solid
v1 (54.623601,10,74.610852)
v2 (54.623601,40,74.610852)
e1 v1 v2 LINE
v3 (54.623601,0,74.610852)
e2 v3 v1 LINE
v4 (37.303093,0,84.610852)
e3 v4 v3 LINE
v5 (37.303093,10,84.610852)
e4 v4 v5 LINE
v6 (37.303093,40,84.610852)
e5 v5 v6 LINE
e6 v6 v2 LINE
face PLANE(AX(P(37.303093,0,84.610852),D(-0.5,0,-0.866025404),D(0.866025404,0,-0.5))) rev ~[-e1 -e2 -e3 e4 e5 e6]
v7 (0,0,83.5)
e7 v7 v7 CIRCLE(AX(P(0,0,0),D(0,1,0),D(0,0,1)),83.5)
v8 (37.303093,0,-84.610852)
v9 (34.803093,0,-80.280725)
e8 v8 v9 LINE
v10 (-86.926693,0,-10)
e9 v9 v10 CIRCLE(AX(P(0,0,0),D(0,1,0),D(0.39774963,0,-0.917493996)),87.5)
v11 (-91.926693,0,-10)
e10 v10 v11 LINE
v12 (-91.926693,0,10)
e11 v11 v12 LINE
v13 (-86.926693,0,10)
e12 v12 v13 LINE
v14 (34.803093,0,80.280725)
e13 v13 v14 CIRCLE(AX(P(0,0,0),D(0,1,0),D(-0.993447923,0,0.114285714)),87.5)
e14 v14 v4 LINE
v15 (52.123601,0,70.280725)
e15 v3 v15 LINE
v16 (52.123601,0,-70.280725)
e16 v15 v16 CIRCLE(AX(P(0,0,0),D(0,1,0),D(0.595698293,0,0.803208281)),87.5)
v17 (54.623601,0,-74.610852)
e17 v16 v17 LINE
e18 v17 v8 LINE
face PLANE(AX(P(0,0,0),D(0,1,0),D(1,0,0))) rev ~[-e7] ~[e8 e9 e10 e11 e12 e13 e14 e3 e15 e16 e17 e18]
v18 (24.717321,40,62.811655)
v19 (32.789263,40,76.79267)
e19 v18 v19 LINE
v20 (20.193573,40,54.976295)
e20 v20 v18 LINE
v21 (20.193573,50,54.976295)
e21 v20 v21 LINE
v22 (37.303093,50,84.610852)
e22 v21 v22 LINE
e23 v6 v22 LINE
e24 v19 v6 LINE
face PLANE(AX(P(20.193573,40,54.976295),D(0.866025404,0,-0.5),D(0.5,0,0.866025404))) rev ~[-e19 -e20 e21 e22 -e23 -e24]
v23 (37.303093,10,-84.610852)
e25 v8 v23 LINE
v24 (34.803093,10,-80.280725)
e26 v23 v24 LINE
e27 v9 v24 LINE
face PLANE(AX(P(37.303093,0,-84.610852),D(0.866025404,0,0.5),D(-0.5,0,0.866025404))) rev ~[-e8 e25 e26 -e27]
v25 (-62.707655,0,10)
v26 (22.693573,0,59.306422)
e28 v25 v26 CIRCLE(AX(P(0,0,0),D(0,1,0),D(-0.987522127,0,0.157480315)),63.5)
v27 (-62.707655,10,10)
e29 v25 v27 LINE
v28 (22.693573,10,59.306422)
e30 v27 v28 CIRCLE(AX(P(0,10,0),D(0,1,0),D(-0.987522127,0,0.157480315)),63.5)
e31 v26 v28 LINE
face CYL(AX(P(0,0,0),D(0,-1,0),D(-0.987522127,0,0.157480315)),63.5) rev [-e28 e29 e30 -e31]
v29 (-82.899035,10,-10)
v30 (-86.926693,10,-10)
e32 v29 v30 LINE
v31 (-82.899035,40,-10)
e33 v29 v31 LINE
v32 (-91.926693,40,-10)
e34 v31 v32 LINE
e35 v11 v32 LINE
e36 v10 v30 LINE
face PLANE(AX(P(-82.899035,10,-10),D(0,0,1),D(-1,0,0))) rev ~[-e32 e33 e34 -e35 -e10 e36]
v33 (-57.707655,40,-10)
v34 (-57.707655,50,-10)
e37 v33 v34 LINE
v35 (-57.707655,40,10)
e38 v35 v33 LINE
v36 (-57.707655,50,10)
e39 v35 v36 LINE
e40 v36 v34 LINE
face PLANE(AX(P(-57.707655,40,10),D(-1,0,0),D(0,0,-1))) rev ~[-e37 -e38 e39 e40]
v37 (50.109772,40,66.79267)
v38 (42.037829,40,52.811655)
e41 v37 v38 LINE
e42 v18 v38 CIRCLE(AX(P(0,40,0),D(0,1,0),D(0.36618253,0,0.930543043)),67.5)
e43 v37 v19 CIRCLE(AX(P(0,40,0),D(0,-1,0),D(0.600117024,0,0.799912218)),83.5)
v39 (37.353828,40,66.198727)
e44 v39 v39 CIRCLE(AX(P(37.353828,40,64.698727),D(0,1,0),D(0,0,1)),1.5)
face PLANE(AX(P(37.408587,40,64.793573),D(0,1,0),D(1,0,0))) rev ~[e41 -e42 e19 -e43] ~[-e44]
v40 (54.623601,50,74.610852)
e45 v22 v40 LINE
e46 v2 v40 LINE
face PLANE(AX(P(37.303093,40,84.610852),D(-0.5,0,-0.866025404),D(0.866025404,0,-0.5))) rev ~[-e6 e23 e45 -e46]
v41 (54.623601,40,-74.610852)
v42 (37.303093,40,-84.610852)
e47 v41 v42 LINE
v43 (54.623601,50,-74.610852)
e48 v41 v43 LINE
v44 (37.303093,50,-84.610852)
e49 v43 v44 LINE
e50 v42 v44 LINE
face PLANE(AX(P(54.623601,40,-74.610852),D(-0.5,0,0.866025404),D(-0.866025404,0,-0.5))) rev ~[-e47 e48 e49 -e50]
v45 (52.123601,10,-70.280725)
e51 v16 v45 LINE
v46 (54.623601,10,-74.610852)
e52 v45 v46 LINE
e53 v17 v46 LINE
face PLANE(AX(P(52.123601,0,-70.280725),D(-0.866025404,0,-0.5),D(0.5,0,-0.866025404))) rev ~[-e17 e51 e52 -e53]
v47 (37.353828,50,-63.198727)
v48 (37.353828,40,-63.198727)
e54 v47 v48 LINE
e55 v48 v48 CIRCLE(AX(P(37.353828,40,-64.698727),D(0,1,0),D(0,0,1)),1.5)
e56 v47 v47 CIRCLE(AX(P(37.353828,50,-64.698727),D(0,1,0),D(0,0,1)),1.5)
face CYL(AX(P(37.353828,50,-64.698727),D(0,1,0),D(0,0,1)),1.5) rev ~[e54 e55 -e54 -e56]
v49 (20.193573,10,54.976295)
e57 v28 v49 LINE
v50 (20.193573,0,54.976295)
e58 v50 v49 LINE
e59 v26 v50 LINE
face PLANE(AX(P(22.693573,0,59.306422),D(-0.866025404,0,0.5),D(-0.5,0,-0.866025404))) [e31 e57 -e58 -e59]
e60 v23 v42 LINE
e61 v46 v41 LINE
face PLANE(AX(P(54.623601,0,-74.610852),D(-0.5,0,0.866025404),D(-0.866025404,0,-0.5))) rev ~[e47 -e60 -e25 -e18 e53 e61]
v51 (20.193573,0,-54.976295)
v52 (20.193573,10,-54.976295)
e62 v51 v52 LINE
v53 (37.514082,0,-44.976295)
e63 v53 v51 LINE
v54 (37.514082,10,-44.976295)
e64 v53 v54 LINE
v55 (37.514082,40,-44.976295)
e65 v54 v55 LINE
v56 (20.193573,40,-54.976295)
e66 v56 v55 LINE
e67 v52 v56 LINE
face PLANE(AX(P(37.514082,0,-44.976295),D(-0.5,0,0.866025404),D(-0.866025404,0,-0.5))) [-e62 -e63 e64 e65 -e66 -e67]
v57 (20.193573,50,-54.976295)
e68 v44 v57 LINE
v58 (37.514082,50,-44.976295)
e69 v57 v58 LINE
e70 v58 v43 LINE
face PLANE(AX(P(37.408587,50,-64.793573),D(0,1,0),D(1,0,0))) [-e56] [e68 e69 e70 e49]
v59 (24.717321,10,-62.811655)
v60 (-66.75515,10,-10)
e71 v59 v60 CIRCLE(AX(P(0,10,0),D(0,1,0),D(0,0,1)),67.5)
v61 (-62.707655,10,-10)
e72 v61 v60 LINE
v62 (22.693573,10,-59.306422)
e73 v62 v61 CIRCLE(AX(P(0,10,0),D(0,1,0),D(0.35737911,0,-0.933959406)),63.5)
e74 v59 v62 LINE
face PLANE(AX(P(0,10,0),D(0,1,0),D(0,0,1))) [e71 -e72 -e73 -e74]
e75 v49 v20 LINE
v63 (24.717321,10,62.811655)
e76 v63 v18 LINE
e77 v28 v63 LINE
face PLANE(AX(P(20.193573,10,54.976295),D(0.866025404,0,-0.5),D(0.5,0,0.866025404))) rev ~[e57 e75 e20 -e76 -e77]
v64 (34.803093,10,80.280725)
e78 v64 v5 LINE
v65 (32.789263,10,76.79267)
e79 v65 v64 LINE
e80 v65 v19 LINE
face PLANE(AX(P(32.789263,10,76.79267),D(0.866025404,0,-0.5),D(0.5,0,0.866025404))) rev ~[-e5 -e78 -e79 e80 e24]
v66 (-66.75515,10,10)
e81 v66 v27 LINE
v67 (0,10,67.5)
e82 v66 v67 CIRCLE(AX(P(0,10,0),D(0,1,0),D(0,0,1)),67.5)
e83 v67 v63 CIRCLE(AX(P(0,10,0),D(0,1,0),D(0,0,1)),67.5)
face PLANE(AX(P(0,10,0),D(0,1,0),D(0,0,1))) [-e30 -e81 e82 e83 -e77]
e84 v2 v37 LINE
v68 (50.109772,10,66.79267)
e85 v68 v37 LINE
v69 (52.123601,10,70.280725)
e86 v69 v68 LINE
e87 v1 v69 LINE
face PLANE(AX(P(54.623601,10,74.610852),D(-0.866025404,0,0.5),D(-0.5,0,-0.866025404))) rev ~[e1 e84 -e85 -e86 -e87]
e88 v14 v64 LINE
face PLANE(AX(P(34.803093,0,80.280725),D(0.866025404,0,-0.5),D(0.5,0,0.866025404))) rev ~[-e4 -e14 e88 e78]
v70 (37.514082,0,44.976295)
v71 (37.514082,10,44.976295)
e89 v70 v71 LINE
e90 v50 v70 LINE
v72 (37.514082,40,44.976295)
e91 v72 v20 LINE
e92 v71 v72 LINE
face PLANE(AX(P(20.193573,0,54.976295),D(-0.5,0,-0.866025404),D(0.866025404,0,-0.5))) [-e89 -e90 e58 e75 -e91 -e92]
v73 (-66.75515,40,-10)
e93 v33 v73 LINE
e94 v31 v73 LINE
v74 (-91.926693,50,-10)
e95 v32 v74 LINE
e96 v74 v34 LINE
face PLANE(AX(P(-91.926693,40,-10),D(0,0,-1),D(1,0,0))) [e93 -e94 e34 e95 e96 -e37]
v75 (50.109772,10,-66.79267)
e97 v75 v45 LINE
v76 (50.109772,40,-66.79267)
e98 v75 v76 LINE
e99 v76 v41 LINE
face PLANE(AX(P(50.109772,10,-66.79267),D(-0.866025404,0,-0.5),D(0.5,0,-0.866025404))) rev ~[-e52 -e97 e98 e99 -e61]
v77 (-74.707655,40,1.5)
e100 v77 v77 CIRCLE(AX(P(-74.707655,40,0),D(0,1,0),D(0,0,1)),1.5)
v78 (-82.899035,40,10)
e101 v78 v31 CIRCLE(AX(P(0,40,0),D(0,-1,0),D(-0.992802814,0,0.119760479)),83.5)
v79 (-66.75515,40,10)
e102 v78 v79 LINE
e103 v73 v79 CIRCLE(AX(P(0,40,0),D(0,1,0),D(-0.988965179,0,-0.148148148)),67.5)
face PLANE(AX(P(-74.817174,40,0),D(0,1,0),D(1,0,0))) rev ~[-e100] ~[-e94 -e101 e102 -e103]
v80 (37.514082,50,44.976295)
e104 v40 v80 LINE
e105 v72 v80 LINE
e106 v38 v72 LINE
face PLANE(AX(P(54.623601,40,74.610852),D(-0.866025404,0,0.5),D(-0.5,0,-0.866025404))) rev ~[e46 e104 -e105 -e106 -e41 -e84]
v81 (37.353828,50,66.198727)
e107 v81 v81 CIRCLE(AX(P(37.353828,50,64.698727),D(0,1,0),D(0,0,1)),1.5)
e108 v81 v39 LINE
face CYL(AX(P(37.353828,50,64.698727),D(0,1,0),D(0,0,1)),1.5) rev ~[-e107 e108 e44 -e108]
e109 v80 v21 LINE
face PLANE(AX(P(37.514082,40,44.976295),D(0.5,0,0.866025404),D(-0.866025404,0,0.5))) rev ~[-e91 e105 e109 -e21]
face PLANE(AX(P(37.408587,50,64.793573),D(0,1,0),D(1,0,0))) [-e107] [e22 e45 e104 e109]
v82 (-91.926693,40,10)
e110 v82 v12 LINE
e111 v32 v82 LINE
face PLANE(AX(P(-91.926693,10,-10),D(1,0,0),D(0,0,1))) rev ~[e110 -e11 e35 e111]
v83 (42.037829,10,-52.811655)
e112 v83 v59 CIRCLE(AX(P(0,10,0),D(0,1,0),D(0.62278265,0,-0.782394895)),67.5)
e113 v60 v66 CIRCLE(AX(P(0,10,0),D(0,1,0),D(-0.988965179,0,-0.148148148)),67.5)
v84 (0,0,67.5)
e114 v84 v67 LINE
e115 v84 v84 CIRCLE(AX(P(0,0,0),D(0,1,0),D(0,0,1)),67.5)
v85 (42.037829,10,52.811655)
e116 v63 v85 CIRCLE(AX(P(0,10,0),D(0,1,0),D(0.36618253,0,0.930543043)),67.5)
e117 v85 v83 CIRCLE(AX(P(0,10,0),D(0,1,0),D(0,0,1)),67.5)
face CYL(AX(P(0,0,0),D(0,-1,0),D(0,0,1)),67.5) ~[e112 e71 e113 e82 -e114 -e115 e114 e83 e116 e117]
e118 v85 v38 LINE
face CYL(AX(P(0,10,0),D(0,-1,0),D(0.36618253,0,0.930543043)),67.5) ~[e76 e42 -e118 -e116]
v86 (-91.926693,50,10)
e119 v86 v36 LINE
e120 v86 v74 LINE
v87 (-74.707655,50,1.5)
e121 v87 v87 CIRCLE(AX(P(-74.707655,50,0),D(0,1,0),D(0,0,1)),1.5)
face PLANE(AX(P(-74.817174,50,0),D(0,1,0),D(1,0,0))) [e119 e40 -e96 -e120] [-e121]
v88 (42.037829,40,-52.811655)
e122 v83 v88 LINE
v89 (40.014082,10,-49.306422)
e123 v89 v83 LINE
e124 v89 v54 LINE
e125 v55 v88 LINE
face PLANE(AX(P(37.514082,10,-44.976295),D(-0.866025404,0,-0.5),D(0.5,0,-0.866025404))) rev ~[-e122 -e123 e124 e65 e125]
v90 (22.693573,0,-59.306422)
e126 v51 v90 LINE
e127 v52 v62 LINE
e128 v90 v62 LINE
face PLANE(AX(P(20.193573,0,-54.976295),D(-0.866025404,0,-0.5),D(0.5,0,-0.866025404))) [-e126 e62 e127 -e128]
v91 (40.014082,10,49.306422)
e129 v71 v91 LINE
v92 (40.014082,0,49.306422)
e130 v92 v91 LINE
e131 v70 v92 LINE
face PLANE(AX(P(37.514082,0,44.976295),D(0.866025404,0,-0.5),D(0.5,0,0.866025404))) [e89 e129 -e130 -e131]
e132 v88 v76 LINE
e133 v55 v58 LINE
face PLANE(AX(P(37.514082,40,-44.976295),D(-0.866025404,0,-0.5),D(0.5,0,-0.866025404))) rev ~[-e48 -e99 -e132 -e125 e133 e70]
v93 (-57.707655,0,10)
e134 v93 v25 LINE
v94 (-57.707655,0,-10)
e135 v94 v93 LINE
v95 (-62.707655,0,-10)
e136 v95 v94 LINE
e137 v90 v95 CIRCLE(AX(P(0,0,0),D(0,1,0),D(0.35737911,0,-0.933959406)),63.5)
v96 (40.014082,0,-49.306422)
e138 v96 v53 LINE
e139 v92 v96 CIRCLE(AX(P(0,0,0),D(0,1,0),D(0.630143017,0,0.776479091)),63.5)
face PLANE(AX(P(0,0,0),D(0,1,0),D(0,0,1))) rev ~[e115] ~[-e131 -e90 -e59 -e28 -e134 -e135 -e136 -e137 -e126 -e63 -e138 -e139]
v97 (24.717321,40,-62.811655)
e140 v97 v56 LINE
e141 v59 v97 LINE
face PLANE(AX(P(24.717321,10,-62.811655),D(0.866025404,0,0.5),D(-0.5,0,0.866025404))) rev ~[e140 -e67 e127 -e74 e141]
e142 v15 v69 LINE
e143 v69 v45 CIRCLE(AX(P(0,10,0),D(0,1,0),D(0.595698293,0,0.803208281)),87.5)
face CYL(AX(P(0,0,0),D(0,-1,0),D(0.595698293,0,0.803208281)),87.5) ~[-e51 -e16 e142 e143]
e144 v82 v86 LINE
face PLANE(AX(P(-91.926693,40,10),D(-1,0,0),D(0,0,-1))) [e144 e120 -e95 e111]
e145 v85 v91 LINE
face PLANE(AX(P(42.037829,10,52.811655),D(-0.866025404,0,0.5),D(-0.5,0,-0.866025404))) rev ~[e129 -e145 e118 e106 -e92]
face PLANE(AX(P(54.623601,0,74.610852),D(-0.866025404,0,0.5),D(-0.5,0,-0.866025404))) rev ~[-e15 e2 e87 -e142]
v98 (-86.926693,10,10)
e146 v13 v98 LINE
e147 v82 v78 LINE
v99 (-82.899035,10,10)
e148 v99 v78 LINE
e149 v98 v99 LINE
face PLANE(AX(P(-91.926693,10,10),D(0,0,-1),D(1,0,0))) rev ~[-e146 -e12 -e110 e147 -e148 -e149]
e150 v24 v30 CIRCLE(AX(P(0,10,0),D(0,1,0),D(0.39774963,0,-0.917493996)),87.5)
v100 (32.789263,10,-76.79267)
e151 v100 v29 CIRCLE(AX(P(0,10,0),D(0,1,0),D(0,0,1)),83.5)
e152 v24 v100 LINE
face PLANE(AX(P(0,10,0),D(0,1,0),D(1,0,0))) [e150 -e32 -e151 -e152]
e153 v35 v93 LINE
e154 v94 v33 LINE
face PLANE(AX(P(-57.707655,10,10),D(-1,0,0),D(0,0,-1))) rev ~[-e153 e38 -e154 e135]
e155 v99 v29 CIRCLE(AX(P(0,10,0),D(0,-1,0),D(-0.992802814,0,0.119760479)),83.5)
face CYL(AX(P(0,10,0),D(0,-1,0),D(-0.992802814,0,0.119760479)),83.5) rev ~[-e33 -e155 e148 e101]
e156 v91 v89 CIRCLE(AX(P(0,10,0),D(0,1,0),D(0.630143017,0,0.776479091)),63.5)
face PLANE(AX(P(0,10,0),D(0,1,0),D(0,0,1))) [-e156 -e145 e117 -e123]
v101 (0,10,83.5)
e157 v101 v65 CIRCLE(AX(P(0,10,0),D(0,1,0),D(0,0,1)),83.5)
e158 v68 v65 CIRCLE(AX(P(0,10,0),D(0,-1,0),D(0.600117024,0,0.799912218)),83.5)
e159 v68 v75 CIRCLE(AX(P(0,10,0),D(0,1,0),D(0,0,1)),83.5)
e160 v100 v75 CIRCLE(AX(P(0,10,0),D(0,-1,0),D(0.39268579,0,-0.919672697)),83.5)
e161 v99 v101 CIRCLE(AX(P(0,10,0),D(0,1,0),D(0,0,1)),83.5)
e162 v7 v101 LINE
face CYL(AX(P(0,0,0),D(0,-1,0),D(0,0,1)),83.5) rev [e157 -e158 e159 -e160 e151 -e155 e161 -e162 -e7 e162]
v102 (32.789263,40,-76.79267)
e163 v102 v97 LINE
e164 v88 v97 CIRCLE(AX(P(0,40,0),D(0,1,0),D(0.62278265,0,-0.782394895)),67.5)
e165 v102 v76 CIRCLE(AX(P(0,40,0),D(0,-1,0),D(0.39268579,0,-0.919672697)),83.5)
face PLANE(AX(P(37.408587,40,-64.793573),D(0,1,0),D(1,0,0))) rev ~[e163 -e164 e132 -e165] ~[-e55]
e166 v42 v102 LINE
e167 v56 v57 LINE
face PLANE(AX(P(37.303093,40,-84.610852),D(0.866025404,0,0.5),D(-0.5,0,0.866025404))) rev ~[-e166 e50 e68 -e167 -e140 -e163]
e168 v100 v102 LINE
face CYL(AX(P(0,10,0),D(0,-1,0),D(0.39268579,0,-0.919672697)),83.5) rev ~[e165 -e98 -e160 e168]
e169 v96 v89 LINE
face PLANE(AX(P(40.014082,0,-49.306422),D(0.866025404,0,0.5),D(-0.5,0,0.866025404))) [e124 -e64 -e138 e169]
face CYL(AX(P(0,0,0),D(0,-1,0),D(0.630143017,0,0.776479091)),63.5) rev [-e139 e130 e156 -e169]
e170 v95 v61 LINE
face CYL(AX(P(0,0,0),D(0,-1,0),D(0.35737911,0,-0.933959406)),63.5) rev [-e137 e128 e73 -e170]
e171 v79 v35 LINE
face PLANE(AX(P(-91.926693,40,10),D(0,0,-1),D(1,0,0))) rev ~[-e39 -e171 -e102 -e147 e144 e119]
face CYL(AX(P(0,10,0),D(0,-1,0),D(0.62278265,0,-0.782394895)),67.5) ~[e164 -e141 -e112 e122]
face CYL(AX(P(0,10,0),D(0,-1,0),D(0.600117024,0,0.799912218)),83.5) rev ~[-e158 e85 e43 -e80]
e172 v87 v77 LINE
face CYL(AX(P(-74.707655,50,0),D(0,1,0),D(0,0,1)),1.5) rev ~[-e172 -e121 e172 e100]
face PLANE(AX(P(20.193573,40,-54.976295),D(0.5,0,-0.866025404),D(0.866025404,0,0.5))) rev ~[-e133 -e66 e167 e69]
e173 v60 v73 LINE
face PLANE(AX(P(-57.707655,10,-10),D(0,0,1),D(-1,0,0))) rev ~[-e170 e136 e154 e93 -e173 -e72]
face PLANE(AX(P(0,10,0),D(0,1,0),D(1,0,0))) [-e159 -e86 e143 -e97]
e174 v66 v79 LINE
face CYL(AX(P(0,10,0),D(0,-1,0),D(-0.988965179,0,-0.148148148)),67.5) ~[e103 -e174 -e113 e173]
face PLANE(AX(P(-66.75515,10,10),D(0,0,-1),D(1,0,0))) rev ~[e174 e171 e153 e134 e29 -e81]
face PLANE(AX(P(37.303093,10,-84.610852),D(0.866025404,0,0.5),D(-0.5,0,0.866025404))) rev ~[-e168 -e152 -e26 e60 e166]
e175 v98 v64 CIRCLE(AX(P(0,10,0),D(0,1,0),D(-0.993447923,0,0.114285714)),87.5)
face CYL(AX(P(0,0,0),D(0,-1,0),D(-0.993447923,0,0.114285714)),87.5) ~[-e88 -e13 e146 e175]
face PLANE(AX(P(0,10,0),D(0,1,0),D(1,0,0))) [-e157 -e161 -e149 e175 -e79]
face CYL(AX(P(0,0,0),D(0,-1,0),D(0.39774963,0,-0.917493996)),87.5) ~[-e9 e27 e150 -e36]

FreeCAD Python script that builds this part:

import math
import FreeCAD as App
import Part
import Sketcher
Q = App.Units.Quantity

doc = App.newDocument("Part")
body = doc.addObject("PartDesign::Body", "Body")

# Sketch on XZ plane
sketch1 = doc.addObject("Sketcher::SketchObject", "Sketch")
body.addObject(sketch1)
sketch1.AttachmentSupport = (doc.XZ_Plane, [""])
sketch1.MapMode = "FlatFace"
sketch1.addGeometry(Part.Circle(App.Vector(0, 0, 0), App.Vector(0, 0, 1), 67.5), False)
sketch1.addGeometry(Part.ArcOfCircle(Part.Circle(App.Vector(0, 0, 0), App.Vector(0, 0, 1), 63.5), math.radians(-170.939325), math.radians(-69.060675)), False)
sketch1.addGeometry(Part.LineSegment(App.Vector(22.693573, -59.306422, 0), App.Vector(20.193573, -54.976295, 0)), False)
sketch1.addGeometry(Part.LineSegment(App.Vector(20.193573, -54.976295, 0), App.Vector(37.514082, -44.976295, 0)), False)
sketch1.addGeometry(Part.LineSegment(App.Vector(37.514082, -44.976295, 0), App.Vector(40.014082, -49.306422, 0)), False)
sketch1.addGeometry(Part.ArcOfCircle(Part.Circle(App.Vector(0, 0, 0), App.Vector(0, 0, 1), 63.5), math.radians(-50.939325), math.radians(50.939325)), False)
sketch1.addGeometry(Part.LineSegment(App.Vector(40.014082, 49.306422, 0), App.Vector(37.514082, 44.976295, 0)), False)
sketch1.addGeometry(Part.LineSegment(App.Vector(37.514082, 44.976295, 0), App.Vector(20.193573, 54.976295, 0)), False)
sketch1.addGeometry(Part.LineSegment(App.Vector(20.193573, 54.976295, 0), App.Vector(22.693573, 59.306422, 0)), False)
sketch1.addGeometry(Part.ArcOfCircle(Part.Circle(App.Vector(0, 0, 0), App.Vector(0, 0, 1), 63.5), math.radians(69.060675), math.radians(170.939325)), False)
sketch1.addGeometry(Part.LineSegment(App.Vector(-62.707655, 10, 0), App.Vector(-57.707655, 10, 0)), False)
sketch1.addGeometry(Part.LineSegment(App.Vector(-57.707655, 10, 0), App.Vector(-57.707655, -10, 0)), False)
sketch1.addGeometry(Part.LineSegment(App.Vector(-57.707655, -10, 0), App.Vector(-62.707655, -10, 0)), False)
sketch1.addConstraint(Sketcher.Constraint("Coincident", 1, 2, 2, 1))
sketch1.addConstraint(Sketcher.Constraint("Coincident", 2, 2, 3, 1))
sketch1.addConstraint(Sketcher.Constraint("Coincident", 3, 2, 4, 1))
sketch1.addConstraint(Sketcher.Constraint("Coincident", 4, 2, 5, 1))
sketch1.addConstraint(Sketcher.Constraint("Coincident", 5, 2, 6, 1))
sketch1.addConstraint(Sketcher.Constraint("Coincident", 6, 2, 7, 1))
sketch1.addConstraint(Sketcher.Constraint("Coincident", 7, 2, 8, 1))
sketch1.addConstraint(Sketcher.Constraint("Coincident", 8, 2, 9, 1))
sketch1.addConstraint(Sketcher.Constraint("Coincident", 9, 2, 10, 1))
sketch1.addConstraint(Sketcher.Constraint("Coincident", 10, 2, 11, 1))
sketch1.addConstraint(Sketcher.Constraint("Coincident", 11, 2, 12, 1))
sketch1.addConstraint(Sketcher.Constraint("Coincident", 12, 2, 1, 1))
sketch1.addConstraint(Sketcher.Constraint("Horizontal", 10))
sketch1.addConstraint(Sketcher.Constraint("Vertical", 11))
sketch1.addConstraint(Sketcher.Constraint("Horizontal", 12))
sketch1.addConstraint(Sketcher.Constraint("Coincident", 0, 3, -1, 1))
sketch1.addConstraint(Sketcher.Constraint("Coincident", 1, 3, -1, 1))
sketch1.addConstraint(Sketcher.Constraint("Coincident", 5, 3, -1, 1))
sketch1.addConstraint(Sketcher.Constraint("Coincident", 9, 3, -1, 1))
sketch1.addConstraint(Sketcher.Constraint("Equal", 1, 5))
sketch1.addConstraint(Sketcher.Constraint("Equal", 5, 9))
sketch1.addConstraint(Sketcher.Constraint("Symmetric", 3, 2, 6, 2, -1))
sketch1.addConstraint(Sketcher.Constraint("Symmetric", 2, 2, 7, 2, -1))
sketch1.addConstraint(Sketcher.Constraint("Perpendicular", 2, 3))
sketch1.addConstraint(Sketcher.Constraint("Perpendicular", 3, 4))
sketch1.addConstraint(Sketcher.Constraint("Perpendicular", 6, 7))
sketch1.addConstraint(Sketcher.Constraint("Perpendicular", 7, 8))
sketch1.addConstraint(Sketcher.Constraint("Vertical", 9, 2, 12, 2))
sketch1.addConstraint(Sketcher.Constraint("Equal", 2, 4))
sketch1.addConstraint(Sketcher.Constraint("Diameter", 0, 135.0))
sketch1.addConstraint(Sketcher.Constraint("Radius", 1, 63.5))
sketch1.addConstraint(Sketcher.Constraint("DistanceX", 10, 1, 10, 2, 5.0))
sketch1.addConstraint(Sketcher.Constraint("DistanceY", 11, 2, 11, 1, 20.0))
sketch1.addConstraint(Sketcher.Constraint("Angle", 2, Q("120 deg")))
sketch1.addConstraint(Sketcher.Constraint("Distance", 2, 5.0))
sketch1.addConstraint(Sketcher.Constraint("Distance", 3, 20.0))
pad1 = doc.addObject("PartDesign::Pad", "Pad")
body.addObject(pad1)
pad1.Profile = sketch1
pad1.Length = 10
pad1.Reversed = True
body2 = doc.addObject("PartDesign::Body", "Body001")

# Sketch on XZ plane
sketch2 = doc.addObject("Sketcher::SketchObject", "Sketch001")
body2.addObject(sketch2)
sketch2.AttachmentSupport = (doc.getObject("XZ_Plane001"), [""])
sketch2.MapMode = "FlatFace"
sketch2.addGeometry(Part.LineSegment(App.Vector(54.623601, 74.610852, 0), App.Vector(52.123601, 70.280725, 0)), False)
sketch2.addGeometry(Part.ArcOfCircle(Part.Circle(App.Vector(0, 0, 0), App.Vector(0, 0, 1), 87.5), math.radians(-53.437572), math.radians(53.437572)), False)
sketch2.addGeometry(Part.LineSegment(App.Vector(52.123601, -70.280725, 0), App.Vector(54.623601, -74.610852, 0)), False)
sketch2.addGeometry(Part.LineSegment(App.Vector(54.623601, -74.610852, 0), App.Vector(37.303093, -84.610852, 0)), False)
sketch2.addGeometry(Part.LineSegment(App.Vector(37.303093, -84.610852, 0), App.Vector(34.803093, -80.280725, 0)), False)
sketch2.addGeometry(Part.ArcOfCircle(Part.Circle(App.Vector(0, 0, 0), App.Vector(0, 0, 1), 87.5), math.radians(-173.437572), math.radians(-66.562428)), False)
sketch2.addGeometry(Part.LineSegment(App.Vector(-86.926693, -10, 0), App.Vector(-91.926693, -10, 0)), False)
sketch2.addGeometry(Part.LineSegment(App.Vector(-91.926693, -10, 0), App.Vector(-91.926693, 10, 0)), False)
sketch2.addGeometry(Part.LineSegment(App.Vector(-91.926693, 10, 0), App.Vector(-86.926693, 10, 0)), False)
sketch2.addGeometry(Part.ArcOfCircle(Part.Circle(App.Vector(0, 0, 0), App.Vector(0, 0, 1), 87.5), math.radians(66.562428), math.radians(173.437572)), False)
sketch2.addGeometry(Part.LineSegment(App.Vector(34.803093, 80.280725, 0), App.Vector(37.303093, 84.610852, 0)), False)
sketch2.addGeometry(Part.LineSegment(App.Vector(37.303093, 84.610852, 0), App.Vector(54.623601, 74.610852, 0)), False)
sketch2.addGeometry(Part.Circle(App.Vector(0, 0, 0), App.Vector(0, 0, 1), 83.5), False)
sketch2.addConstraint(Sketcher.Constraint("Coincident", 0, 2, 1, 2))
sketch2.addConstraint(Sketcher.Constraint("Coincident", 1, 1, 2, 1))
sketch2.addConstraint(Sketcher.Constraint("Coincident", 2, 2, 3, 1))
sketch2.addConstraint(Sketcher.Constraint("Coincident", 3, 2, 4, 1))
sketch2.addConstraint(Sketcher.Constraint("Coincident", 4, 2, 5, 2))
sketch2.addConstraint(Sketcher.Constraint("Coincident", 5, 1, 6, 1))
sketch2.addConstraint(Sketcher.Constraint("Coincident", 6, 2, 7, 1))
sketch2.addConstraint(Sketcher.Constraint("Coincident", 7, 2, 8, 1))
sketch2.addConstraint(Sketcher.Constraint("Coincident", 8, 2, 9, 2))
sketch2.addConstraint(Sketcher.Constraint("Coincident", 9, 1, 10, 1))
sketch2.addConstraint(Sketcher.Constraint("Coincident", 10, 2, 11, 1))
sketch2.addConstraint(Sketcher.Constraint("Coincident", 11, 2, 0, 1))
sketch2.addConstraint(Sketcher.Constraint("Horizontal", 6))
sketch2.addConstraint(Sketcher.Constraint("Vertical", 7))
sketch2.addConstraint(Sketcher.Constraint("Horizontal", 8))
sketch2.addConstraint(Sketcher.Constraint("Coincident", 1, 3, -1, 1))
sketch2.addConstraint(Sketcher.Constraint("Coincident", 5, 3, -1, 1))
sketch2.addConstraint(Sketcher.Constraint("Coincident", 9, 3, -1, 1))
sketch2.addConstraint(Sketcher.Constraint("Coincident", 12, 3, -1, 1))
sketch2.addConstraint(Sketcher.Constraint("Equal", 1, 5))
sketch2.addConstraint(Sketcher.Constraint("Equal", 5, 9))
sketch2.addConstraint(Sketcher.Constraint("Symmetric", 3, 2, 10, 2, -1))
sketch2.addConstraint(Sketcher.Constraint("Symmetric", 2, 2, 11, 2, -1))
sketch2.addConstraint(Sketcher.Constraint("Perpendicular", 2, 3))
sketch2.addConstraint(Sketcher.Constraint("Perpendicular", 3, 4))
sketch2.addConstraint(Sketcher.Constraint("Parallel", 0, 10))
sketch2.addConstraint(Sketcher.Constraint("Perpendicular", 10, 11))
sketch2.addConstraint(Sketcher.Constraint("Vertical", 5, 1, 8, 2))
sketch2.addConstraint(Sketcher.Constraint("Equal", 2, 4))
sketch2.addConstraint(Sketcher.Constraint("Diameter", 12, 167.0))
sketch2.addConstraint(Sketcher.Constraint("Radius", 1, 87.5))
sketch2.addConstraint(Sketcher.Constraint("DistanceX", 6, 2, 6, 1, 5.0))
sketch2.addConstraint(Sketcher.Constraint("DistanceY", 7, 1, 7, 2, 20.0))
sketch2.addConstraint(Sketcher.Constraint("Angle", 0, Q("-120 deg")))
sketch2.addConstraint(Sketcher.Constraint("Distance", 0, 5.0))
sketch2.addConstraint(Sketcher.Constraint("Distance", 3, 20.0))
pad2 = doc.addObject("PartDesign::Pad", "Pad001")
body2.addObject(pad2)
pad2.Profile = sketch2
pad2.Length = 10
pad2.Reversed = True
body.AllowCompound = True
doc.recompute()

boolean = doc.addObject("PartDesign::Boolean", "Boolean")
body.addObject(boolean)
boolean.Type = "Fuse"
boolean.addObjects([body2])

# Sketch on XZ plane
sketch3 = doc.addObject("Sketcher::SketchObject", "Sketch002")
body.addObject(sketch3)
sketch3.AttachmentSupport = (doc.XZ_Plane, [""])
sketch3.MapMode = "FlatFace"
sketch3.AttachmentOffset = App.Placement(App.Vector(0, 0, -10), App.Rotation())
sketch3.addGeometry(Part.LineSegment(App.Vector(-57.707655, 10, 0), App.Vector(-57.707655, -10, 0)), False)
sketch3.addGeometry(Part.LineSegment(App.Vector(-57.707655, -10, 0), App.Vector(-66.75515, -10, 0)), False)
sketch3.addGeometry(Part.ArcOfCircle(Part.Circle(App.Vector(0, 0, 0), App.Vector(0, 0, 1), 67.5), math.radians(171.480376), math.radians(188.519624)), False)
sketch3.addGeometry(Part.LineSegment(App.Vector(-66.75515, 10, 0), App.Vector(-57.707655, 10, 0)), False)
sketch3.addGeometry(Part.ArcOfCircle(Part.Circle(App.Vector(0, 0, 0), App.Vector(0, 0, 1), 83.5), math.radians(173.121721), math.radians(186.878279)), False)
sketch3.addGeometry(Part.LineSegment(App.Vector(-82.899035, -10, 0), App.Vector(-91.926693, -10, 0)), False)
sketch3.addGeometry(Part.LineSegment(App.Vector(-91.926693, -10, 0), App.Vector(-91.926693, 10, 0)), False)
sketch3.addGeometry(Part.LineSegment(App.Vector(-91.926693, 10, 0), App.Vector(-82.899035, 10, 0)), False)
sketch3.addGeometry(Part.ArcOfCircle(Part.Circle(App.Vector(0, 0, 0), App.Vector(0, 0, 1), 67.5), math.radians(-68.519624), math.radians(-51.480376)), False)
sketch3.addGeometry(Part.LineSegment(App.Vector(24.717321, -62.811655, 0), App.Vector(20.193573, -54.976295, 0)), False)
sketch3.addGeometry(Part.LineSegment(App.Vector(20.193573, -54.976295, 0), App.Vector(37.514082, -44.976295, 0)), False)
sketch3.addGeometry(Part.LineSegment(App.Vector(37.514082, -44.976295, 0), App.Vector(42.037829, -52.811655, 0)), False)
sketch3.addGeometry(Part.LineSegment(App.Vector(20.193573, 54.976295, 0), App.Vector(24.717321, 62.811655, 0)), False)
sketch3.addGeometry(Part.ArcOfCircle(Part.Circle(App.Vector(0, 0, 0), App.Vector(0, 0, 1), 67.5), math.radians(51.480376), math.radians(68.519624)), False)
sketch3.addGeometry(Part.LineSegment(App.Vector(42.037829, 52.811655, 0), App.Vector(37.514082, 44.976295, 0)), False)
sketch3.addGeometry(Part.LineSegment(App.Vector(37.514082, 44.976295, 0), App.Vector(20.193573, 54.976295, 0)), False)
sketch3.addGeometry(Part.LineSegment(App.Vector(37.303093, -84.610852, 0), App.Vector(32.789263, -76.79267, 0)), False)
sketch3.addGeometry(Part.ArcOfCircle(Part.Circle(App.Vector(0, 0, 0), App.Vector(0, 0, 1), 83.5), math.radians(-66.878279), math.radians(-53.121721)), False)
sketch3.addGeometry(Part.LineSegment(App.Vector(50.109772, -66.79267, 0), App.Vector(54.623601, -74.610852, 0)), False)
sketch3.addGeometry(Part.LineSegment(App.Vector(54.623601, -74.610852, 0), App.Vector(37.303093, -84.610852, 0)), False)
sketch3.addGeometry(Part.ArcOfCircle(Part.Circle(App.Vector(0, 0, 0), App.Vector(0, 0, 1), 83.5), math.radians(53.121721), math.radians(66.878279)), False)
sketch3.addGeometry(Part.LineSegment(App.Vector(32.789263, 76.79267, 0), App.Vector(37.303093, 84.610852, 0)), False)
sketch3.addGeometry(Part.LineSegment(App.Vector(37.303093, 84.610852, 0), App.Vector(54.623601, 74.610852, 0)), False)
sketch3.addGeometry(Part.LineSegment(App.Vector(54.623601, 74.610852, 0), App.Vector(50.109772, 66.79267, 0)), False)
sketch3.addConstraint(Sketcher.Constraint("Coincident", 0, 2, 1, 1))
sketch3.addConstraint(Sketcher.Constraint("Coincident", 1, 2, 2, 2))
sketch3.addConstraint(Sketcher.Constraint("Coincident", 2, 1, 3, 1))
sketch3.addConstraint(Sketcher.Constraint("Coincident", 3, 2, 0, 1))
sketch3.addConstraint(Sketcher.Constraint("Coincident", 4, 2, 5, 1))
sketch3.addConstraint(Sketcher.Constraint("Coincident", 5, 2, 6, 1))
sketch3.addConstraint(Sketcher.Constraint("Coincident", 6, 2, 7, 1))
sketch3.addConstraint(Sketcher.Constraint("Coincident", 7, 2, 4, 1))
sketch3.addConstraint(Sketcher.Constraint("Coincident", 8, 1, 9, 1))
sketch3.addConstraint(Sketcher.Constraint("Coincident", 9, 2, 10, 1))
sketch3.addConstraint(Sketcher.Constraint("Coincident", 10, 2, 11, 1))
sketch3.addConstraint(Sketcher.Constraint("Coincident", 11, 2, 8, 2))
sketch3.addConstraint(Sketcher.Constraint("Coincident", 12, 2, 13, 2))
sketch3.addConstraint(Sketcher.Constraint("Coincident", 13, 1, 14, 1))
sketch3.addConstraint(Sketcher.Constraint("Coincident", 14, 2, 15, 1))
sketch3.addConstraint(Sketcher.Constraint("Coincident", 15, 2, 12, 1))
sketch3.addConstraint(Sketcher.Constraint("Coincident", 16, 2, 17, 1))
sketch3.addConstraint(Sketcher.Constraint("Coincident", 17, 2, 18, 1))
sketch3.addConstraint(Sketcher.Constraint("Coincident", 18, 2, 19, 1))
sketch3.addConstraint(Sketcher.Constraint("Coincident", 19, 2, 16, 1))
sketch3.addConstraint(Sketcher.Constraint("Coincident", 20, 2, 21, 1))
sketch3.addConstraint(Sketcher.Constraint("Coincident", 21, 2, 22, 1))
sketch3.addConstraint(Sketcher.Constraint("Coincident", 22, 2, 23, 1))
sketch3.addConstraint(Sketcher.Constraint("Coincident", 23, 2, 20, 1))
sketch3.addConstraint(Sketcher.Constraint("Vertical", 0))
sketch3.addConstraint(Sketcher.Constraint("Horizontal", 1))
sketch3.addConstraint(Sketcher.Constraint("Horizontal", 3))
sketch3.addConstraint(Sketcher.Constraint("Horizontal", 5))
sketch3.addConstraint(Sketcher.Constraint("Vertical", 6))
sketch3.addConstraint(Sketcher.Constraint("Horizontal", 7))
sketch3.addConstraint(Sketcher.Constraint("Coincident", 2, 3, -1, 1))
sketch3.addConstraint(Sketcher.Constraint("Coincident", 4, 3, -1, 1))
sketch3.addConstraint(Sketcher.Constraint("Coincident", 8, 3, -1, 1))
sketch3.addConstraint(Sketcher.Constraint("Coincident", 13, 3, -1, 1))
sketch3.addConstraint(Sketcher.Constraint("Coincident", 17, 3, -1, 1))
sketch3.addConstraint(Sketcher.Constraint("Coincident", 20, 3, -1, 1))
sketch3.addConstraint(Sketcher.Constraint("Equal", 2, 8))
sketch3.addConstraint(Sketcher.Constraint("Equal", 8, 13))
sketch3.addConstraint(Sketcher.Constraint("Equal", 4, 17))
sketch3.addConstraint(Sketcher.Constraint("Equal", 17, 20))
sketch3.addConstraint(Sketcher.Constraint("Symmetric", 10, 2, 14, 2, -1))
sketch3.addConstraint(Sketcher.Constraint("Symmetric", 9, 2, 15, 2, -1))
sketch3.addConstraint(Sketcher.Constraint("Symmetric", 19, 2, 21, 2, -1))
sketch3.addConstraint(Sketcher.Constraint("Symmetric", 18, 2, 22, 2, -1))
sketch3.addConstraint(Sketcher.Constraint("Perpendicular", 9, 10))
sketch3.addConstraint(Sketcher.Constraint("Perpendicular", 10, 11))
sketch3.addConstraint(Sketcher.Constraint("Parallel", 12, 14))
sketch3.addConstraint(Sketcher.Constraint("Perpendicular", 14, 15))
sketch3.addConstraint(Sketcher.Constraint("Parallel", 11, 16))
sketch3.addConstraint(Sketcher.Constraint("Parallel", 16, 18))
sketch3.addConstraint(Sketcher.Constraint("Perpendicular", 18, 19))
sketch3.addConstraint(Sketcher.Constraint("Perpendicular", 15, 21))
sketch3.addConstraint(Sketcher.Constraint("Perpendicular", 22, 23))
sketch3.addConstraint(Sketcher.Constraint("Horizontal", 1, 2, 4, 2))
sketch3.addConstraint(Sketcher.Constraint("Horizontal", 3, 2, 6, 2))
sketch3.addConstraint(Sketcher.Constraint("Vertical", 1, 2, 2, 1))
sketch3.addConstraint(Sketcher.Constraint("Equal", 9, 11))
sketch3.addConstraint(Sketcher.Constraint("Equal", 16, 18))
sketch3.addConstraint(Sketcher.Constraint("Equal", 15, 19))
sketch3.addConstraint(Sketcher.Constraint("Radius", 2, 67.5))
sketch3.addConstraint(Sketcher.Constraint("Radius", 4, 83.5))
sketch3.addConstraint(Sketcher.Constraint("DistanceY", 0, 2, 0, 1, 20.0))
sketch3.addConstraint(Sketcher.Constraint("Angle", 9, Q("120 deg")))
sketch3.addConstraint(Sketcher.Constraint("Distance", 10, 20.0))
sketch3.addConstraint(Sketcher.Constraint("DistanceX", 5, 2, 5, 1, 9.027658))
sketch3.addConstraint(Sketcher.Constraint("DistanceX", -1, 1, 18, 2, 54.623601))
sketch3.addConstraint(Sketcher.Constraint("DistanceX", 9, 2, 17, 2, 29.916198))
sketch3.addConstraint(Sketcher.Constraint("DistanceX", 1, 2, 1, 1, 9.047495))
pad3 = doc.addObject("PartDesign::Pad", "Pad002")
body.addObject(pad3)
pad3.Profile = sketch3
pad3.Length = 30
pad3.Reversed = True

# Sketch on XZ plane
sketch4 = doc.addObject("Sketcher::SketchObject", "Sketch003")
body.addObject(sketch4)
sketch4.AttachmentSupport = (doc.XZ_Plane, [""])
sketch4.MapMode = "FlatFace"
sketch4.AttachmentOffset = App.Placement(App.Vector(0, 0, -40), App.Rotation())
sketch4.addGeometry(Part.LineSegment(App.Vector(-91.926693, -10, 0), App.Vector(-91.926693, 10, 0)), False)
sketch4.addGeometry(Part.LineSegment(App.Vector(-91.926693, 10, 0), App.Vector(-57.707655, 10, 0)), False)
sketch4.addGeometry(Part.LineSegment(App.Vector(-57.707655, 10, 0), App.Vector(-57.707655, -10, 0)), False)
sketch4.addGeometry(Part.LineSegment(App.Vector(-57.707655, -10, 0), App.Vector(-91.926693, -10, 0)), False)
sketch4.addGeometry(Part.LineSegment(App.Vector(20.193573, -54.976295, 0), App.Vector(37.514082, -44.976295, 0)), False)
sketch4.addGeometry(Part.LineSegment(App.Vector(37.514082, -44.976295, 0), App.Vector(54.623601, -74.610852, 0)), False)
sketch4.addGeometry(Part.LineSegment(App.Vector(54.623601, -74.610852, 0), App.Vector(37.303093, -84.610852, 0)), False)
sketch4.addGeometry(Part.LineSegment(App.Vector(37.303093, -84.610852, 0), App.Vector(20.193573, -54.976295, 0)), False)
sketch4.addGeometry(Part.LineSegment(App.Vector(37.514082, 44.976295, 0), App.Vector(20.193573, 54.976295, 0)), False)
sketch4.addGeometry(Part.LineSegment(App.Vector(20.193573, 54.976295, 0), App.Vector(37.303093, 84.610852, 0)), False)
sketch4.addGeometry(Part.LineSegment(App.Vector(37.303093, 84.610852, 0), App.Vector(54.623601, 74.610852, 0)), False)
sketch4.addGeometry(Part.LineSegment(App.Vector(54.623601, 74.610852, 0), App.Vector(37.514082, 44.976295, 0)), False)
sketch4.addConstraint(Sketcher.Constraint("Coincident", 0, 2, 1, 1))
sketch4.addConstraint(Sketcher.Constraint("Coincident", 1, 2, 2, 1))
sketch4.addConstraint(Sketcher.Constraint("Coincident", 2, 2, 3, 1))
sketch4.addConstraint(Sketcher.Constraint("Coincident", 3, 2, 0, 1))
sketch4.addConstraint(Sketcher.Constraint("Coincident", 4, 2, 5, 1))
sketch4.addConstraint(Sketcher.Constraint("Coincident", 5, 2, 6, 1))
sketch4.addConstraint(Sketcher.Constraint("Coincident", 6, 2, 7, 1))
sketch4.addConstraint(Sketcher.Constraint("Coincident", 7, 2, 4, 1))
sketch4.addConstraint(Sketcher.Constraint("Coincident", 8, 2, 9, 1))
sketch4.addConstraint(Sketcher.Constraint("Coincident", 9, 2, 10, 1))
sketch4.addConstraint(Sketcher.Constraint("Coincident", 10, 2, 11, 1))
sketch4.addConstraint(Sketcher.Constraint("Coincident", 11, 2, 8, 1))
sketch4.addConstraint(Sketcher.Constraint("Vertical", 0))
sketch4.addConstraint(Sketcher.Constraint("Horizontal", 1))
sketch4.addConstraint(Sketcher.Constraint("Vertical", 2))
sketch4.addConstraint(Sketcher.Constraint("Horizontal", 3))
sketch4.addConstraint(Sketcher.Constraint("Symmetric", 7, 2, 8, 2, -1))
sketch4.addConstraint(Sketcher.Constraint("Symmetric", 6, 2, 9, 2, -1))
sketch4.addConstraint(Sketcher.Constraint("Symmetric", 5, 2, 10, 2, -1))
sketch4.addConstraint(Sketcher.Constraint("Symmetric", 4, 2, 11, 2, -1))
sketch4.addConstraint(Sketcher.Constraint("Perpendicular", 4, 5))
sketch4.addConstraint(Sketcher.Constraint("Perpendicular", 5, 6))
sketch4.addConstraint(Sketcher.Constraint("Perpendicular", 6, 7))
sketch4.addConstraint(Sketcher.Constraint("DistanceY", 0, 1, 0, 2, 20.0))
sketch4.addConstraint(Sketcher.Constraint("Angle", 4, Q("30 deg")))
sketch4.addConstraint(Sketcher.Constraint("Distance", 4, 20.0))
sketch4.addConstraint(Sketcher.Constraint("DistanceY", -1, 1, 0, 2, 10.0))
sketch4.addConstraint(Sketcher.Constraint("DistanceX", 1, 1, 1, 2, 34.219038))
sketch4.addConstraint(Sketcher.Constraint("DistanceX", -1, 1, 5, 2, 54.623601))
sketch4.addConstraint(Sketcher.Constraint("Distance", 5, 34.219038))
sketch4.addConstraint(Sketcher.Constraint("DistanceY", 5, 2, -1, 1, 74.610852))
sketch4.addConstraint(Sketcher.Constraint("DistanceX", 2, 2, 7, 2, 77.901229))
pad4 = doc.addObject("PartDesign::Pad", "Pad003")
body.addObject(pad4)
pad4.Profile = sketch4
pad4.Length = 10
pad4.Reversed = True

# Sketch on XZ plane
sketch5 = doc.addObject("Sketcher::SketchObject", "Sketch004")
body.addObject(sketch5)
sketch5.AttachmentSupport = (doc.XZ_Plane, [""])
sketch5.MapMode = "FlatFace"
sketch5.AttachmentOffset = App.Placement(App.Vector(0, 0, -50), App.Rotation())
sketch5.addGeometry(Part.Circle(App.Vector(-74.707655, 0, 0), App.Vector(0, 0, 1), 1.5), False)
sketch5.addGeometry(Part.Circle(App.Vector(37.353828, -64.698727, 0), App.Vector(0, 0, 1), 1.5), False)
sketch5.addGeometry(Part.Circle(App.Vector(37.353828, 64.698727, 0), App.Vector(0, 0, 1), 1.5), False)
sketch5.addConstraint(Sketcher.Constraint("Equal", 0, 1))
sketch5.addConstraint(Sketcher.Constraint("Equal", 1, 2))
sketch5.addConstraint(Sketcher.Constraint("Symmetric", 1, 3, 2, 3, -1))
sketch5.addConstraint(Sketcher.Constraint("PointOnObject", 0, 3, -1))
sketch5.addConstraint(Sketcher.Constraint("Diameter", 0, 3.0))
sketch5.addConstraint(Sketcher.Constraint("DistanceX", 0, 3, -1, 1, 74.707655))
sketch5.addConstraint(Sketcher.Constraint("DistanceX", -1, 1, 1, 3, 37.353828))
sketch5.addConstraint(Sketcher.Constraint("DistanceY", 1, 3, -1, 1, 64.698727))
pocket1 = doc.addObject("PartDesign::Pocket", "Pocket")
body.addObject(pocket1)
pocket1.Profile = sketch5
pocket1.Length = 20
pocket1.Reversed = True

doc.recompute()
